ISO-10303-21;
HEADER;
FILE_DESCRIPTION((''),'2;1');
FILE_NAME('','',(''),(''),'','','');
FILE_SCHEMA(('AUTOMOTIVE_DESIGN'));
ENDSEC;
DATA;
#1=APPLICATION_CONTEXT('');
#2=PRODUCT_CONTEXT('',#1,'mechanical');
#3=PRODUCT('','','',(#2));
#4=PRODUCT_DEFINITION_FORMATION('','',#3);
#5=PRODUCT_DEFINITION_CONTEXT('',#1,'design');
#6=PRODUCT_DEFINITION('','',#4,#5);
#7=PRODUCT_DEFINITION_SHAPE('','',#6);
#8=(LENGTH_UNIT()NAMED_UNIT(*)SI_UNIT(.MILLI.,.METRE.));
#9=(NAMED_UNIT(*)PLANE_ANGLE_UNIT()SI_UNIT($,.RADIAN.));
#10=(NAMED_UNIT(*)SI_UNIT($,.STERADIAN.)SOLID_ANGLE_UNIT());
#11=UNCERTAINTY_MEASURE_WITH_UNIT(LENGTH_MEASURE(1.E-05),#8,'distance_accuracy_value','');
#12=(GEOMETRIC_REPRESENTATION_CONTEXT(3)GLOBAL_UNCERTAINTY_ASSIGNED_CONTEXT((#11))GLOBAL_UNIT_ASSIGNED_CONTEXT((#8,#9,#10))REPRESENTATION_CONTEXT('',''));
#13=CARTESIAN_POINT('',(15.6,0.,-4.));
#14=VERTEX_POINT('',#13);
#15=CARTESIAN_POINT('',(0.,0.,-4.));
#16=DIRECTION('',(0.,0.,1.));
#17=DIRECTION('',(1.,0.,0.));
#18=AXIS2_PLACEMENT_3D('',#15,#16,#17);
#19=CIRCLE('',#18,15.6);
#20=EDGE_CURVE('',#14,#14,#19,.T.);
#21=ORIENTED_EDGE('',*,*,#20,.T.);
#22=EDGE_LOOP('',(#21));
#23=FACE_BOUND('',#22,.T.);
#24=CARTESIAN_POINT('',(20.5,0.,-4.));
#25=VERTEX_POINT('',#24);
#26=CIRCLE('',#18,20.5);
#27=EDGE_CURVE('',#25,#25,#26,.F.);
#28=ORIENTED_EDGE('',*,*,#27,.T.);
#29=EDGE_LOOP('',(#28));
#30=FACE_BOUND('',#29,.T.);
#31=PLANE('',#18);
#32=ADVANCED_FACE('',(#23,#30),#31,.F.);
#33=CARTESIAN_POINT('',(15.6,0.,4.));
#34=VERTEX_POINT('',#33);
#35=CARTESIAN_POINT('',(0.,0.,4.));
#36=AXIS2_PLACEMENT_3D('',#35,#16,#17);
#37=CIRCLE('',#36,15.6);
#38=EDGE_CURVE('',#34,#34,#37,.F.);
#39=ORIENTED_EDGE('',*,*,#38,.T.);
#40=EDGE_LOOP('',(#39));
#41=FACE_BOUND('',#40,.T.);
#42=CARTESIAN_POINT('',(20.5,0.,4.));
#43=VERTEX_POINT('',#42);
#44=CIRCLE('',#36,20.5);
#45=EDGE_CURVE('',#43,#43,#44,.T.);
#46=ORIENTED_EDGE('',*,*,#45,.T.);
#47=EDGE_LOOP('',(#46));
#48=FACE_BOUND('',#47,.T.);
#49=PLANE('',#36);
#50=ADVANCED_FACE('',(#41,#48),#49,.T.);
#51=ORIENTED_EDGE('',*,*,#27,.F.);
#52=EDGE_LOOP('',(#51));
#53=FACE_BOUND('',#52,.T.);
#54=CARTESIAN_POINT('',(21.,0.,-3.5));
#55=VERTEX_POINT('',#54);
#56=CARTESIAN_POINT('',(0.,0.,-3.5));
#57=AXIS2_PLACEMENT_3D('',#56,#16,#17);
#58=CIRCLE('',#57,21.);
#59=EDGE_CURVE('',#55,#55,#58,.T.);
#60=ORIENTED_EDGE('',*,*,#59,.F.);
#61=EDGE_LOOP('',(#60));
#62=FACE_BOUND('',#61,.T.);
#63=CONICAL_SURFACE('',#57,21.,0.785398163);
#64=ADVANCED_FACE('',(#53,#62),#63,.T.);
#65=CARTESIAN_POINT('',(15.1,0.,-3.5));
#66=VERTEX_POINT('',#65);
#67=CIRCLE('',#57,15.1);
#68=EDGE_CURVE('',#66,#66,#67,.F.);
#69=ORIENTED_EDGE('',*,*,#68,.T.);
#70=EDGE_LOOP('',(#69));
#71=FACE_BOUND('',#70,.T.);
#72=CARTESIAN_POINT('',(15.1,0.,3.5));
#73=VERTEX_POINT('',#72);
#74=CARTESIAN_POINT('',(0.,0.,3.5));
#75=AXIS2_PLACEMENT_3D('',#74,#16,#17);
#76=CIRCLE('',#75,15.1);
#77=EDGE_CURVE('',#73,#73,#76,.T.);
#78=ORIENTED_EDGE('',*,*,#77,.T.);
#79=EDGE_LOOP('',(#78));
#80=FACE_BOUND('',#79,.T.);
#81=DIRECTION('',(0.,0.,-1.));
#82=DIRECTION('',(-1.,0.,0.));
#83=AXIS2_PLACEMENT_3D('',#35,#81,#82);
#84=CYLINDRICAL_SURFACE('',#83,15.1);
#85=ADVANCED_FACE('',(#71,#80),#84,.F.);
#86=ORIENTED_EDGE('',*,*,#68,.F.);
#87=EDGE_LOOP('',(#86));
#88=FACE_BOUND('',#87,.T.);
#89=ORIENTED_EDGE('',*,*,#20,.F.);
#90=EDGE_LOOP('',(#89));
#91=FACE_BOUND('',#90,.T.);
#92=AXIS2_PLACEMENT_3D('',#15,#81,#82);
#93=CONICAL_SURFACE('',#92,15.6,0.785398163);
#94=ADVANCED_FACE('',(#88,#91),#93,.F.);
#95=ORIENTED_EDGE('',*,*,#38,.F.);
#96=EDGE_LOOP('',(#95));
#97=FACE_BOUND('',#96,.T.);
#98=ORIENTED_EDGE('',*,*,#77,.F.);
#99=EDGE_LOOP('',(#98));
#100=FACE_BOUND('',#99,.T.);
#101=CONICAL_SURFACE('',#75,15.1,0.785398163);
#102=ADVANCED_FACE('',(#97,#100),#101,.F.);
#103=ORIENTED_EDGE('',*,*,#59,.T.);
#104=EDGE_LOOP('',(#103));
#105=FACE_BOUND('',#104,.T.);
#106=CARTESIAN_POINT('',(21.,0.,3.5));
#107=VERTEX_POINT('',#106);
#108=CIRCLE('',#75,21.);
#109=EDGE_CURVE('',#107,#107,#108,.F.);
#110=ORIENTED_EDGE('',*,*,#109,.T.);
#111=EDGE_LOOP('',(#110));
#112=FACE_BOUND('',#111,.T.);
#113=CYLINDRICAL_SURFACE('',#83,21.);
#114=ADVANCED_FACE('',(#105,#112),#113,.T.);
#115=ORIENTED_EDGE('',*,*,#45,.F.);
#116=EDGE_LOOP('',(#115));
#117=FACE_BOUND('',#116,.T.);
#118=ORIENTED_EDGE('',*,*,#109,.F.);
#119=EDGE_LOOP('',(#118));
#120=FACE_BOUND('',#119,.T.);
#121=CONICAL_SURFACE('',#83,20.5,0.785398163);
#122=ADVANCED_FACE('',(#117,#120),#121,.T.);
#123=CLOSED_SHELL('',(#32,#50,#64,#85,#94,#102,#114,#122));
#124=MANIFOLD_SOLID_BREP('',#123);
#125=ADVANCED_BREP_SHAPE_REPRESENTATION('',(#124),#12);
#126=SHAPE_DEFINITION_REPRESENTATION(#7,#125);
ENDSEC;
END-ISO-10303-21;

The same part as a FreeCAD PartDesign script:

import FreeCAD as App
import Part
import Sketcher
Q = App.Units.Quantity


def edges_at(feature, points):
    """Names of the edges that pass closest to the given points."""
    edges = feature.Shape.Edges
    near = lambda p: min(range(len(edges)), key=lambda i: edges[i].distToShape(Part.Vertex(*p))[0])
    return sorted({f"Edge{near(p) + 1}" for p in points})

doc = App.newDocument("Part")
body = doc.addObject("PartDesign::Body", "Body")

sketch1 = doc.addObject("Sketcher::SketchObject", "Sketch")
body.addObject(sketch1)
sketch1.AttachmentSupport = (doc.XY_Plane, [""])
sketch1.MapMode = "FlatFace"
sketch1.addGeometry([
    Part.Circle(App.Vector(0, 0, 0), App.Vector(0, 0, 1), 21),
    Part.Circle(App.Vector(0, 0, 0), App.Vector(0, 0, 1), 15.1),
], False)
sketch1.addConstraint([
    Sketcher.Constraint("Coincident", 0, 3, -1, 1),
    Sketcher.Constraint("Coincident", 1, 3, -1, 1),
    Sketcher.Constraint("Diameter", 0, Q("42 mm")),
    Sketcher.Constraint("Diameter", 1, Q("30.2 mm")),
])
pad1 = doc.addObject("PartDesign::Pad", "Pad")
body.addObject(pad1)
pad1.Profile = sketch1
pad1.Length = 8
pad1.Midplane = True
doc.recompute()

chamfer = doc.addObject("PartDesign::Chamfer", "Chamfer")
body.addObject(chamfer)
chamfer.Base = (pad1, edges_at(pad1, [
    (-21, 0, -4),
    (-21, 0, 4),
    (-15.1, 0, -4),
    (-15.1, 0, 4),
]))
chamfer.Size = 0.5

doc.recompute()
